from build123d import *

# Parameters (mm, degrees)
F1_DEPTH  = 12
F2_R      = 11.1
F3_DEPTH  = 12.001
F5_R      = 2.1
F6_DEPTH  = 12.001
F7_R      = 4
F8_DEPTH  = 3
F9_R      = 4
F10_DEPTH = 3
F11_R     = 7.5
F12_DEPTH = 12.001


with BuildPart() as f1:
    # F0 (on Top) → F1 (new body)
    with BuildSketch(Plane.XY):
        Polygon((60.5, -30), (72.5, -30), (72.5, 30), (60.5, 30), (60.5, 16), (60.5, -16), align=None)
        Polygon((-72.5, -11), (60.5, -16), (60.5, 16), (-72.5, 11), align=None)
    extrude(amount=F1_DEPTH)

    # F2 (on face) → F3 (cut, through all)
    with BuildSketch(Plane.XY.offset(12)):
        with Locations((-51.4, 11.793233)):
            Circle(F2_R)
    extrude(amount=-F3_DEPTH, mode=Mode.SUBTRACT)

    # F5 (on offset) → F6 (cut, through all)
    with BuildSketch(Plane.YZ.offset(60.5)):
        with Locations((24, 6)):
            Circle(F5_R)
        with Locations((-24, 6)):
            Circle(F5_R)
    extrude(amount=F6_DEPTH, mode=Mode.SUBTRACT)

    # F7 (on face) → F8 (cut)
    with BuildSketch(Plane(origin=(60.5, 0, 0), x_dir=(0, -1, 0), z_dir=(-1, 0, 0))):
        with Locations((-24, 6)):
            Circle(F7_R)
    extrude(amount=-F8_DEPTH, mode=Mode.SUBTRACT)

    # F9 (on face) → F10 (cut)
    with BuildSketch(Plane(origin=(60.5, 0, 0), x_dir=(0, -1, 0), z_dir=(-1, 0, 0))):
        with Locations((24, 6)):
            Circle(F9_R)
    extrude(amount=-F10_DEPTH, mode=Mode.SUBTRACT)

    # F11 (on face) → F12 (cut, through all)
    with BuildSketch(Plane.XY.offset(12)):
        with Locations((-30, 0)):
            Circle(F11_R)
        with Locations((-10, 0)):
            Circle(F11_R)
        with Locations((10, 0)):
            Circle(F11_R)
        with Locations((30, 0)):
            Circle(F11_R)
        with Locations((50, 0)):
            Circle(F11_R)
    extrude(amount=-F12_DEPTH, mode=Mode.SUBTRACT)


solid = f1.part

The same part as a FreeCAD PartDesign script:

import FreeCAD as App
import Part
import Sketcher
from FreeCAD import Vector


def add_polygon(sketch, points):
    """Adds a closed chain of lines whose ends are joined by coincident constraints."""
    first, n = sketch.GeometryCount, len(points)
    for a, b in zip(points, points[1:] + points[:1]):
        sketch.addGeometry(Part.LineSegment(App.Vector(*a, 0), App.Vector(*b, 0)), False)
    for i in range(n):
        sketch.addConstraint(Sketcher.Constraint("Coincident", first + i, 2, first + (i + 1) % n, 1))

doc = App.newDocument("Part")
body = doc.addObject("PartDesign::Body", "Body")

sketch1 = doc.addObject("Sketcher::SketchObject", "Sketch")
body.addObject(sketch1)
sketch1.AttachmentSupport = (doc.XY_Plane, [""])
sketch1.MapMode = "FlatFace"
add_polygon(sketch1, [(60.5, -30), (72.5, -30), (72.5, 30), (60.5, 30), (60.5, 16), (-72.5, 11), (-72.5, -11), (60.5, -16)])
sketch1.addConstraint([
    Sketcher.Constraint("Horizontal", 0),
    Sketcher.Constraint("Vertical", 1),
    Sketcher.Constraint("Horizontal", 2),
    Sketcher.Constraint("Vertical", 3),
    Sketcher.Constraint("Vertical", 5),
    Sketcher.Constraint("Vertical", 7),
    Sketcher.Constraint("Symmetric", 3, 2, 6, 2, -1),
    Sketcher.Constraint("Equal", 3, 7),
    Sketcher.Constraint("Equal", 4, 6),
    Sketcher.Constraint("DistanceX", 0, 1, 0, 2, 12.0),
    Sketcher.Constraint("DistanceY", 1, 1, 1, 2, 60.0),
    Sketcher.Constraint("DistanceY", 3, 2, 3, 1, 14.0),
    Sketcher.Constraint("DistanceY", 5, 2, 5, 1, 22.0),
    Sketcher.Constraint("DistanceX", 4, 2, 3, 2, 133.0),
    Sketcher.Constraint("DistanceX", -1, 1, 0, 2, 72.5),
])
pad1 = doc.addObject("PartDesign::Pad", "Pad")
body.addObject(pad1)
pad1.Profile = sketch1
pad1.Length = 12

sketch2 = doc.addObject("Sketcher::SketchObject", "Sketch001")
body.addObject(sketch2)
sketch2.AttachmentSupport = (doc.XY_Plane, [""])
sketch2.MapMode = "FlatFace"
sketch2.AttachmentOffset = App.Placement(Vector(0, 0, 12), App.Rotation())
sketch2.addGeometry(Part.Circle(Vector(-51.4, 11.793233, 0), Vector(0, 0, 1), 11.1), False)
sketch2.addConstraint([
    Sketcher.Constraint("Diameter", 0, 22.2),
    Sketcher.Constraint("DistanceX", 0, 3, -1, 1, 51.4),
    Sketcher.Constraint("DistanceY", -1, 1, 0, 3, 11.793233),
])
pocket1 = doc.addObject("PartDesign::Pocket", "Pocket")
body.addObject(pocket1)
pocket1.Profile = sketch2
pocket1.Type = "ThroughAll"

sketch3 = doc.addObject("Sketcher::SketchObject", "Sketch002")
body.addObject(sketch3)
sketch3.AttachmentSupport = (doc.YZ_Plane, [""])
sketch3.MapMode = "FlatFace"
sketch3.AttachmentOffset = App.Placement(Vector(0, 0, 60.5), App.Rotation())
sketch3.addGeometry([
    Part.Circle(Vector(24, 6, 0), Vector(0, 0, 1), 2.1),
    Part.Circle(Vector(-24, 6, 0), Vector(0, 0, 1), 2.1),
], False)
sketch3.addConstraint([
    Sketcher.Constraint("Equal", 0, 1),
    Sketcher.Constraint("Symmetric", 0, 3, 1, 3, -2),
    Sketcher.Constraint("Diameter", 0, 4.2),
    Sketcher.Constraint("DistanceX", -1, 1, 0, 3, 24.0),
    Sketcher.Constraint("DistanceY", -1, 1, 0, 3, 6.0),
])
pocket2 = doc.addObject("PartDesign::Pocket", "Pocket001")
body.addObject(pocket2)
pocket2.Profile = sketch3
pocket2.Type = "ThroughAll"
pocket2.Reversed = True

sketch4 = doc.addObject("Sketcher::SketchObject", "Sketch003")
body.addObject(sketch4)
sketch4.AttachmentSupport = (doc.YZ_Plane, [""])
sketch4.MapMode = "FlatFace"
sketch4.AttachmentOffset = App.Placement(Vector(0, 0, 60.5), App.Rotation())
sketch4.addGeometry(Part.Circle(Vector(24, 6, 0), Vector(0, 0, 1), 4), False)
sketch4.addConstraint([
    Sketcher.Constraint("Diameter", 0, 8.0),
    Sketcher.Constraint("DistanceX", -1, 1, 0, 3, 24.0),
    Sketcher.Constraint("DistanceY", -1, 1, 0, 3, 6.0),
])
pocket3 = doc.addObject("PartDesign::Pocket", "Pocket002")
body.addObject(pocket3)
pocket3.Profile = sketch4
pocket3.Length = 3
pocket3.Reversed = True

sketch5 = doc.addObject("Sketcher::SketchObject", "Sketch004")
body.addObject(sketch5)
sketch5.AttachmentSupport = (doc.YZ_Plane, [""])
sketch5.MapMode = "FlatFace"
sketch5.AttachmentOffset = App.Placement(Vector(0, 0, 60.5), App.Rotation())
sketch5.addGeometry(Part.Circle(Vector(-24, 6, 0), Vector(0, 0, 1), 4), False)
sketch5.addConstraint([
    Sketcher.Constraint("Diameter", 0, 8.0),
    Sketcher.Constraint("DistanceX", 0, 3, -1, 1, 24.0),
    Sketcher.Constraint("DistanceY", -1, 1, 0, 3, 6.0),
])
pocket4 = doc.addObject("PartDesign::Pocket", "Pocket003")
body.addObject(pocket4)
pocket4.Profile = sketch5
pocket4.Length = 3
pocket4.Reversed = True

sketch6 = doc.addObject("Sketcher::SketchObject", "Sketch005")
body.addObject(sketch6)
sketch6.AttachmentSupport = (doc.XY_Plane, [""])
sketch6.MapMode = "FlatFace"
sketch6.AttachmentOffset = App.Placement(Vector(0, 0, 12), App.Rotation())
sketch6.addGeometry([
    Part.Circle(Vector(-30, 0, 0), Vector(0, 0, 1), 7.5),
    Part.Circle(Vector(-10, 0, 0), Vector(0, 0, 1), 7.5),
    Part.Circle(Vector(10, 0, 0), Vector(0, 0, 1), 7.5),
    Part.Circle(Vector(30, 0, 0), Vector(0, 0, 1), 7.5),
    Part.Circle(Vector(50, 0, 0), Vector(0, 0, 1), 7.5),
], False)
sketch6.addConstraint([
    Sketcher.Constraint("Equal", 0, 1),
    Sketcher.Constraint("Equal", 1, 2),
    Sketcher.Constraint("Equal", 2, 3),
    Sketcher.Constraint("Equal", 3, 4),
    Sketcher.Constraint("Symmetric", 1, 3, 2, 3, -1, 1),
    Sketcher.Constraint("Symmetric", 0, 3, 3, 3, -1, 1),
    Sketcher.Constraint("PointOnObject", 0, 3, -1),
    Sketcher.Constraint("PointOnObject", 1, 3, -1),
    Sketcher.Constraint("PointOnObject", 4, 3, -1),
    Sketcher.Constraint("Diameter", 0, 15.0),
    Sketcher.Constraint("DistanceX", 0, 3, -1, 1, 30.0),
    Sketcher.Constraint("DistanceX", 1, 3, -1, 1, 10.0),
    Sketcher.Constraint("DistanceX", -1, 1, 4, 3, 50.0),
])
pocket5 = doc.addObject("PartDesign::Pocket", "Pocket004")
body.addObject(pocket5)
pocket5.Profile = sketch6
pocket5.Type = "ThroughAll"

doc.recompute()
